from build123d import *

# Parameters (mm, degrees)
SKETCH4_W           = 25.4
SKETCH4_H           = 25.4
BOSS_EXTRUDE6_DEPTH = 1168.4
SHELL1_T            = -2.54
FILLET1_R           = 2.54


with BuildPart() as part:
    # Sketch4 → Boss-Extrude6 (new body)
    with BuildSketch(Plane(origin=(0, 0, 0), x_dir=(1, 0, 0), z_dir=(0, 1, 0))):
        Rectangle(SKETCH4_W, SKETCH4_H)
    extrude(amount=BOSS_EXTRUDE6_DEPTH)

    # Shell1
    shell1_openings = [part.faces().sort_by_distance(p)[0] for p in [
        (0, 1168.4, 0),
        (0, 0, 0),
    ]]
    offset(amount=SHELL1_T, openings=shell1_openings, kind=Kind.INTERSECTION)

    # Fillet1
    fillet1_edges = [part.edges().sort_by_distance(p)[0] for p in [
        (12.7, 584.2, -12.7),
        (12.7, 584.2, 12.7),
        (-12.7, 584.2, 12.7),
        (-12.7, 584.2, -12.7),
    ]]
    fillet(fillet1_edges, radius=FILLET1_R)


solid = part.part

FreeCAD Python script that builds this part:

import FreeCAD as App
import Part
import Sketcher
Q = App.Units.Quantity


def edges_at(feature, points):
    """Names of the edges that pass closest to the given points."""
    edges = feature.Shape.Edges
    near = lambda p: min(range(len(edges)), key=lambda i: edges[i].distToShape(Part.Vertex(*p))[0])
    return sorted({f"Edge{near(p) + 1}" for p in points})


def faces_at(feature, points):
    """Names of the faces that lie closest to the given points."""
    faces = feature.Shape.Faces
    near = lambda p: min(range(len(faces)), key=lambda i: faces[i].distToShape(Part.Vertex(*p))[0])
    return sorted({f"Face{near(p) + 1}" for p in points})

doc = App.newDocument("Part")
body = doc.addObject("PartDesign::Body", "Body")

sketch1 = body.newObject("Sketcher::SketchObject", "Sketch")
sketch1.AttachmentSupport = (doc.getObject("XZ_Plane"), [""])
sketch1.MapMode = "FlatFace"
sketch1.addGeometry([
    Part.LineSegment(App.Vector(-12.7, -12.7, 0), App.Vector(-12.7, 12.7, 0)),
    Part.LineSegment(App.Vector(-12.7, 12.7, 0), App.Vector(12.7, 12.7, 0)),
    Part.LineSegment(App.Vector(12.7, 12.7, 0), App.Vector(12.7, -12.7, 0)),
    Part.LineSegment(App.Vector(12.7, -12.7, 0), App.Vector(-12.7, -12.7, 0)),
], False)
sketch1.addConstraint([
    Sketcher.Constraint("Coincident", 0, 2, 1, 1),
    Sketcher.Constraint("Coincident", 1, 2, 2, 1),
    Sketcher.Constraint("Coincident", 2, 2, 3, 1),
    Sketcher.Constraint("Coincident", 3, 2, 0, 1),
    Sketcher.Constraint("Vertical", 0),
    Sketcher.Constraint("Horizontal", 1),
    Sketcher.Constraint("Vertical", 2),
    Sketcher.Constraint("Horizontal", 3),
    Sketcher.Constraint("Symmetric", 0, 2, 2, 2, -1, 1),
    Sketcher.Constraint("Equal", 3, 0),
    Sketcher.Constraint("DistanceX", 1, 1, 1, 2, Q("1 in")),
])
pad1 = body.newObject("PartDesign::Pad", "Pad")
pad1.Profile = sketch1
pad1.Length = Q("46 in")
pad1.Reversed = True
doc.recompute()

thickness = body.newObject("PartDesign::Thickness", "Thickness")
thickness.Base = (pad1, faces_at(pad1, [(0, 1168.4, 0), (0, 0, 0)]))
thickness.Value = Q("0.1 in")
thickness.Reversed = True
thickness.Join = "Intersection"
doc.recompute()

fillet = body.newObject("PartDesign::Fillet", "Fillet")
fillet.Base = (thickness, edges_at(thickness, [
    (12.7, 584.2, -12.7),
    (12.7, 584.2, 12.7),
    (-12.7, 584.2, 12.7),
    (-12.7, 584.2, -12.7),
]))
fillet.Radius = Q("0.1 in")

doc.recompute()
